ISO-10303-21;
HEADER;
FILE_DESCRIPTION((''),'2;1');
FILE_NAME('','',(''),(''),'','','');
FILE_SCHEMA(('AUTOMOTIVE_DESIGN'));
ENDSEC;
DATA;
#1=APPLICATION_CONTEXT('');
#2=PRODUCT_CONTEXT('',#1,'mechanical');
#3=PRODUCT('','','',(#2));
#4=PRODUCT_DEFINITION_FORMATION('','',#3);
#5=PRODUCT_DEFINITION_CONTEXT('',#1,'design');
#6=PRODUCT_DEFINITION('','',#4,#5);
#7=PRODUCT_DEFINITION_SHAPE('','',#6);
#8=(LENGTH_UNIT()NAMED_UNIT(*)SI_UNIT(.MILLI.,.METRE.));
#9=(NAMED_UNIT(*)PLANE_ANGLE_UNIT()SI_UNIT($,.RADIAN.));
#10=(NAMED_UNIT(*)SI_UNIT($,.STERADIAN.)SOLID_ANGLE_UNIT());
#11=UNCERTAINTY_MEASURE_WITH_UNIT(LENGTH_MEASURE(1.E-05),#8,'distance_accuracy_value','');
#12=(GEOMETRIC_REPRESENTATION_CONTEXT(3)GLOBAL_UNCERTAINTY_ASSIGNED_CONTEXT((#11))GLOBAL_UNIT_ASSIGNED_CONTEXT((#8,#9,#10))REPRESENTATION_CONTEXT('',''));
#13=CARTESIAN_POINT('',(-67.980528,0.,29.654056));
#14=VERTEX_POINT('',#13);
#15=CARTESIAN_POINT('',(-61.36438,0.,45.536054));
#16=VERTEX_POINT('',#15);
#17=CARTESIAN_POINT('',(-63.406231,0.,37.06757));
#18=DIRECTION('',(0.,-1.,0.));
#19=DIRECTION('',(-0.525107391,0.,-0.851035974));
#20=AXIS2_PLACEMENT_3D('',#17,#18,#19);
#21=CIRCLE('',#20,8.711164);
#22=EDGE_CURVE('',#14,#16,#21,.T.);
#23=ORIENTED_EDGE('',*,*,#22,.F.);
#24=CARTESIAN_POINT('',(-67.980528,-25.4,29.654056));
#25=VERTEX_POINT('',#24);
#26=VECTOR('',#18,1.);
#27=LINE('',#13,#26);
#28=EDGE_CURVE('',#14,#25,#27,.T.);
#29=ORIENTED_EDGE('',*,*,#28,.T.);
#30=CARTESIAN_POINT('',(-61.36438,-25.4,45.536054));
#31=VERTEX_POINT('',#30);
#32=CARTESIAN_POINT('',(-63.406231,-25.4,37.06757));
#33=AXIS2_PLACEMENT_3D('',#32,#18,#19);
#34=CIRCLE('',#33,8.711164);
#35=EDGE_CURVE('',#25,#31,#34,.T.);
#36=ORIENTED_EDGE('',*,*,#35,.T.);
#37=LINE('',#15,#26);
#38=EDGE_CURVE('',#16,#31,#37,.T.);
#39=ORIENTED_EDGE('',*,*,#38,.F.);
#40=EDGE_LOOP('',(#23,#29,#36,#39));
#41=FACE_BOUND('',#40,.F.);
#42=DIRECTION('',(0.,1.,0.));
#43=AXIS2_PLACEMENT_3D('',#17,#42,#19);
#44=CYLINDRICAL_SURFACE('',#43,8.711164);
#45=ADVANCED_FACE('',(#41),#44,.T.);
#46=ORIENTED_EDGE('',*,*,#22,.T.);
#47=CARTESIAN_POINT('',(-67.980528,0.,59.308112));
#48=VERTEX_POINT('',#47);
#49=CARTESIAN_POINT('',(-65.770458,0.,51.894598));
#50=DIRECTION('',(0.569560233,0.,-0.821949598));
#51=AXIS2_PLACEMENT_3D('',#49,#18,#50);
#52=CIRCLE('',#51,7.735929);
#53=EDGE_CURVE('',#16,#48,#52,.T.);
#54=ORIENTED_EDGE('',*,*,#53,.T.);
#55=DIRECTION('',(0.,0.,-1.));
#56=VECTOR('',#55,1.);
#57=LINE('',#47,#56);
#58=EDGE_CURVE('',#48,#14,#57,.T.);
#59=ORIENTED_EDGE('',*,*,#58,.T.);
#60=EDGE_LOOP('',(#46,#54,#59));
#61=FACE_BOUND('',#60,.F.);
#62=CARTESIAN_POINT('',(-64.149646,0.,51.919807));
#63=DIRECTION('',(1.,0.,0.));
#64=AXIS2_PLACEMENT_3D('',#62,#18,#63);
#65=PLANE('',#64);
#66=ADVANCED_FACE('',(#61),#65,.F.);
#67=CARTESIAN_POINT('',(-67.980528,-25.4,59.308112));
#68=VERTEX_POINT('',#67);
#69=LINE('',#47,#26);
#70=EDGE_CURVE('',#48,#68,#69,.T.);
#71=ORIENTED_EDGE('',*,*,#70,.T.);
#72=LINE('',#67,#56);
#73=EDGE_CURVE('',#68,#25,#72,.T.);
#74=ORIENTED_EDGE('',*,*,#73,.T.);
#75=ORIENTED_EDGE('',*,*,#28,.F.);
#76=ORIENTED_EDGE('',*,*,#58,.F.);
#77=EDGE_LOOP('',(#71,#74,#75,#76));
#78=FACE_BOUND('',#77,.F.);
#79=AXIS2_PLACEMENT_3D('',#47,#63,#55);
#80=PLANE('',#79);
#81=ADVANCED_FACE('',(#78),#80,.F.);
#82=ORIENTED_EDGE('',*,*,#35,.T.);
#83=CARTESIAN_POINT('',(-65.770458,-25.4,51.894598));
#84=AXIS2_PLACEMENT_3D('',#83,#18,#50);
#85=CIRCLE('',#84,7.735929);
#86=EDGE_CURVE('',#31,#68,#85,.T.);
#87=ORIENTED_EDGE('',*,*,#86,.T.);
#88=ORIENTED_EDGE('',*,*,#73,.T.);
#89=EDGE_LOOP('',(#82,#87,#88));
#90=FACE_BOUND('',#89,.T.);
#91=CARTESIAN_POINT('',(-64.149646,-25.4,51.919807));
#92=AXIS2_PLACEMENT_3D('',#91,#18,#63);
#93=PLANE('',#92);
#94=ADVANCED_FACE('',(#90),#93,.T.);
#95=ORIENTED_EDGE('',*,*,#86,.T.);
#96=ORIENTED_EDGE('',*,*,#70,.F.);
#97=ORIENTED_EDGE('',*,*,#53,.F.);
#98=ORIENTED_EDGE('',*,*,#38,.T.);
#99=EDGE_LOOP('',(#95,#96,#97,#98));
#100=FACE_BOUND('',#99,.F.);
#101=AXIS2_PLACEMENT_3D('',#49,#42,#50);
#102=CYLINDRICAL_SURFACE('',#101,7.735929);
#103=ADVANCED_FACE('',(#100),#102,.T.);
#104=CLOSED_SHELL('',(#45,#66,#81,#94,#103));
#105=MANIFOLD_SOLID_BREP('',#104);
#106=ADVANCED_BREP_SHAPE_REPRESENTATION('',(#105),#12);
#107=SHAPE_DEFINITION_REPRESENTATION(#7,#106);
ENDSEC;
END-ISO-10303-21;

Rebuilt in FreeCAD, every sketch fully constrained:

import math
import FreeCAD as App
import Part
import Sketcher

V = App.Vector
Q = App.Units.Quantity

doc = App.newDocument("Part")
body = doc.addObject("PartDesign::Body", "Body")

# Sketch on XZ plane
sketch1 = body.newObject("Sketcher::SketchObject", "Sketch")
sketch1.AttachmentSupport = (doc.getObject("XZ_Plane"), [""])
sketch1.MapMode = "FlatFace"
sketch1.addGeometry(Part.ArcOfCircle(Part.Circle(V(-66, 52, 0), V(0, 0, 1), 8), math.radians(-55), math.radians(107)), False)
sketch1.addGeometry(Part.LineSegment(V(-68, 59, 0), V(-68, 30, 0)), False)
sketch1.addGeometry(Part.ArcOfCircle(Part.Circle(V(-63, 37, 0), V(0, 0, 1), 9), math.radians(-122), math.radians(76)), False)
sketch1.addConstraint(Sketcher.Constraint("Coincident", 0, 2, 1, 1))
sketch1.addConstraint(Sketcher.Constraint("Coincident", 1, 2, 2, 1))
sketch1.addConstraint(Sketcher.Constraint("Coincident", 2, 2, 0, 1))
sketch1.addConstraint(Sketcher.Constraint("Vertical", 1))
sketch1.addConstraint(Sketcher.Constraint("Radius", 0, 7.735929))
sketch1.addConstraint(Sketcher.Constraint("Radius", 2, 8.711164))
sketch1.addConstraint(Sketcher.Constraint("DistanceY", 1, 2, 2, 2, 15.881998))
sketch1.addConstraint(Sketcher.Constraint("DistanceY", 1, 2, 1, 1, 29.654056))
sketch1.addConstraint(Sketcher.Constraint("DistanceX", 2, 3, -1, 1, 63.406231))
sketch1.addConstraint(Sketcher.Constraint("DistanceY", -1, 1, 2, 3, 37.06757))
sketch1.addConstraint(Sketcher.Constraint("DistanceY", -1, 1, 0, 2, 59.308112))
pad1 = body.newObject("PartDesign::Pad", "Pad")
pad1.Profile = sketch1
pad1.Length = Q("1 in")

# Sketch on XZ plane
sketch2 = body.newObject("Sketcher::SketchObject", "Sketch001")
sketch2.AttachmentSupport = (doc.getObject("XZ_Plane"), [""])
sketch2.MapMode = "FlatFace"
sketch2.addGeometry(Part.ArcOfCircle(Part.Circle(V(-66, 52, 0), V(0, 0, 1), 8), math.radians(-55), math.radians(107)), False)
sketch2.addGeometry(Part.LineSegment(V(-68, 59, 0), V(-68, 30, 0)), False)
sketch2.addGeometry(Part.ArcOfCircle(Part.Circle(V(-63, 37, 0), V(0, 0, 1), 9), math.radians(-122), math.radians(76)), False)
sketch2.addConstraint(Sketcher.Constraint("Coincident", 0, 2, 1, 1))
sketch2.addConstraint(Sketcher.Constraint("Coincident", 1, 2, 2, 1))
sketch2.addConstraint(Sketcher.Constraint("Coincident", 2, 2, 0, 1))
sketch2.addConstraint(Sketcher.Constraint("Vertical", 1))
sketch2.addConstraint(Sketcher.Constraint("Radius", 0, 7.735929))
sketch2.addConstraint(Sketcher.Constraint("Radius", 2, 8.711164))
sketch2.addConstraint(Sketcher.Constraint("DistanceY", 1, 2, 2, 2, 15.881998))
sketch2.addConstraint(Sketcher.Constraint("DistanceY", 1, 2, 1, 1, 29.654056))
sketch2.addConstraint(Sketcher.Constraint("DistanceX", 2, 3, -1, 1, 63.406231))
sketch2.addConstraint(Sketcher.Constraint("DistanceY", -1, 1, 2, 3, 37.06757))
sketch2.addConstraint(Sketcher.Constraint("DistanceY", -1, 1, 0, 2, 59.308112))
pad2 = body.newObject("PartDesign::Pad", "Pad001")
pad2.Profile = sketch2
pad2.Length = Q("1 in")

doc.recompute()
